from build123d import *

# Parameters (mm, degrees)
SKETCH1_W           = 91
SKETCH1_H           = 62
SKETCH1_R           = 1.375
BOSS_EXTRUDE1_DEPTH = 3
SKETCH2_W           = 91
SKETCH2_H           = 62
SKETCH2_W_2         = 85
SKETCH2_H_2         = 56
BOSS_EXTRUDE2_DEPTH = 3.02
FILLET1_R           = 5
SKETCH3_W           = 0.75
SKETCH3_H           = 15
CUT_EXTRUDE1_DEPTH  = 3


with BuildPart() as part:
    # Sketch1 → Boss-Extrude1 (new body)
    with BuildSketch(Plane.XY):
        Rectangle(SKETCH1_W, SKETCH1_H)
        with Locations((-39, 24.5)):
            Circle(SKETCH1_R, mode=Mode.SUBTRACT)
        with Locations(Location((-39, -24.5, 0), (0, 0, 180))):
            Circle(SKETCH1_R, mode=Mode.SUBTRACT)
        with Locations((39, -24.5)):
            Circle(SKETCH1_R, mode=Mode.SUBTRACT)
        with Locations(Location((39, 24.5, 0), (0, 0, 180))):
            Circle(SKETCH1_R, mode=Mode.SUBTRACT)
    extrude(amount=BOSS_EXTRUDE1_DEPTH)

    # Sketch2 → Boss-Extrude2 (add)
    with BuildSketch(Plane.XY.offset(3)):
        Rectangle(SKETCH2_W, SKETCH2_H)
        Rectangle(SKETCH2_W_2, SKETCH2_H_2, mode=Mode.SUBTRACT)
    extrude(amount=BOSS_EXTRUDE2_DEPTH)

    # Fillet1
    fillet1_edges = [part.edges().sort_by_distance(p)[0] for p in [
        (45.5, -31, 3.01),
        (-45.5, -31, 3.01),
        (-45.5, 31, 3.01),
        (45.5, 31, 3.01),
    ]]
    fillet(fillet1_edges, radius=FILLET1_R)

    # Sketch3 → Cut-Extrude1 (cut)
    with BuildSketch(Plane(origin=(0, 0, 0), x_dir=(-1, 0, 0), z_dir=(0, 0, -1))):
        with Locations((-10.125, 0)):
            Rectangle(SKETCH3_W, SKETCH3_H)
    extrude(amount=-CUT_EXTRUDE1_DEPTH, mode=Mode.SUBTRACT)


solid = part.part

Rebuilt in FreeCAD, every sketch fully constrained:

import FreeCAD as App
import Part
import Sketcher
Q = App.Units.Quantity


def edges_at(feature, points):
    """Names of the edges that pass closest to the given points."""
    edges = feature.Shape.Edges
    near = lambda p: min(range(len(edges)), key=lambda i: edges[i].distToShape(Part.Vertex(*p))[0])
    return sorted({f"Edge{near(p) + 1}" for p in points})

doc = App.newDocument("Part")
body = doc.addObject("PartDesign::Body", "Body")

# Sketch on XY plane
sketch1 = body.newObject("Sketcher::SketchObject", "Sketch")
sketch1.AttachmentSupport = (doc.getObject("XY_Plane"), [""])
sketch1.MapMode = "FlatFace"
sketch1.addGeometry([
    Part.LineSegment(App.Vector(-45.5, 31, 0), App.Vector(-45.5, -31, 0)),  # 0
    Part.LineSegment(App.Vector(-45.5, -31, 0), App.Vector(45.5, -31, 0)),  # 1
    Part.LineSegment(App.Vector(45.5, -31, 0), App.Vector(45.5, 31, 0)),  # 2
    Part.LineSegment(App.Vector(45.5, 31, 0), App.Vector(-45.5, 31, 0)),  # 3
    Part.Circle(App.Vector(-39, -24.5, 0), App.Vector(0, 0, 1), 1.375),  # 4
    Part.Circle(App.Vector(39, -24.5, 0), App.Vector(0, 0, 1), 1.375),  # 5
    Part.Circle(App.Vector(-39, 24.5, 0), App.Vector(0, 0, 1), 1.375),  # 6
    Part.Circle(App.Vector(39, 24.5, 0), App.Vector(0, 0, 1), 1.375),  # 7
], False)
sketch1.addConstraint([
    Sketcher.Constraint("Coincident", 0, 2, 1, 1),
    Sketcher.Constraint("Coincident", 1, 2, 2, 1),
    Sketcher.Constraint("Coincident", 2, 2, 3, 1),
    Sketcher.Constraint("Coincident", 3, 2, 0, 1),
    Sketcher.Constraint("Vertical", 0),
    Sketcher.Constraint("Horizontal", 1),
    Sketcher.Constraint("Vertical", 2),
    Sketcher.Constraint("Horizontal", 3),
    Sketcher.Constraint("Equal", 4, 5),
    Sketcher.Constraint("Equal", 5, 6),
    Sketcher.Constraint("Equal", 6, 7),
    Sketcher.Constraint("Symmetric", 5, 3, 6, 3, -1, 1),
    Sketcher.Constraint("Symmetric", 4, 3, 7, 3, -1, 1),
    Sketcher.Constraint("Symmetric", 0, 2, 2, 2, -1, 1),
    Sketcher.Constraint("Symmetric", 4, 3, 5, 3, -2),
    Sketcher.Constraint("Diameter", 4, Q("2.75 mm")),
    Sketcher.Constraint("DistanceX", 1, 1, 1, 2, Q("91 mm")),
    Sketcher.Constraint("DistanceY", 0, 2, 0, 1, Q("62 mm")),
    Sketcher.Constraint("DistanceX", 4, 3, -1, 1, Q("39 mm")),
    Sketcher.Constraint("DistanceY", 4, 3, 6, 3, Q("49 mm")),
])
pad1 = body.newObject("PartDesign::Pad", "Pad")
pad1.Profile = sketch1
pad1.Length = 3

# Sketch on XY plane
sketch2 = body.newObject("Sketcher::SketchObject", "Sketch001")
sketch2.AttachmentSupport = (doc.getObject("XY_Plane"), [""])
sketch2.MapMode = "FlatFace"
sketch2.AttachmentOffset = App.Placement(App.Vector(0, 0, 3), App.Rotation())
sketch2.addGeometry([
    Part.LineSegment(App.Vector(-45.5, 31, 0), App.Vector(-45.5, -31, 0)),  # 0
    Part.LineSegment(App.Vector(-45.5, -31, 0), App.Vector(45.5, -31, 0)),  # 1
    Part.LineSegment(App.Vector(45.5, -31, 0), App.Vector(45.5, 31, 0)),  # 2
    Part.LineSegment(App.Vector(45.5, 31, 0), App.Vector(-45.5, 31, 0)),  # 3
    Part.LineSegment(App.Vector(42.5, -28, 0), App.Vector(-42.5, -28, 0)),  # 4
    Part.LineSegment(App.Vector(-42.5, -28, 0), App.Vector(-42.5, 28, 0)),  # 5
    Part.LineSegment(App.Vector(-42.5, 28, 0), App.Vector(42.5, 28, 0)),  # 6
    Part.LineSegment(App.Vector(42.5, 28, 0), App.Vector(42.5, -28, 0)),  # 7
], False)
sketch2.addConstraint([
    Sketcher.Constraint("Coincident", 0, 2, 1, 1),
    Sketcher.Constraint("Coincident", 1, 2, 2, 1),
    Sketcher.Constraint("Coincident", 2, 2, 3, 1),
    Sketcher.Constraint("Coincident", 3, 2, 0, 1),
    Sketcher.Constraint("Coincident", 4, 2, 5, 1),
    Sketcher.Constraint("Coincident", 5, 2, 6, 1),
    Sketcher.Constraint("Coincident", 6, 2, 7, 1),
    Sketcher.Constraint("Coincident", 7, 2, 4, 1),
    Sketcher.Constraint("Vertical", 0),
    Sketcher.Constraint("Horizontal", 1),
    Sketcher.Constraint("Vertical", 2),
    Sketcher.Constraint("Horizontal", 3),
    Sketcher.Constraint("Horizontal", 4),
    Sketcher.Constraint("Vertical", 5),
    Sketcher.Constraint("Horizontal", 6),
    Sketcher.Constraint("Vertical", 7),
    Sketcher.Constraint("Symmetric", 0, 2, 2, 2, -1, 1),
    Sketcher.Constraint("Symmetric", 4, 2, 6, 2, -1, 1),
    Sketcher.Constraint("DistanceX", 1, 1, 1, 2, Q("91 mm")),
    Sketcher.Constraint("DistanceX", 4, 2, 4, 1, Q("85 mm")),
    Sketcher.Constraint("DistanceY", 0, 2, 0, 1, Q("62 mm")),
    Sketcher.Constraint("DistanceY", 5, 1, 5, 2, Q("56 mm")),
])
pad2 = body.newObject("PartDesign::Pad", "Pad001")
pad2.Profile = sketch2
pad2.Length = 3.02
doc.recompute()

fillet = body.newObject("PartDesign::Fillet", "Fillet")
fillet.Base = (pad2, edges_at(pad2, [
    (45.5, -31, 3.01),
    (-45.5, -31, 3.01),
    (-45.5, 31, 3.01),
    (45.5, 31, 3.01),
]))
fillet.Radius = 5

# Sketch on XY plane
sketch3 = body.newObject("Sketcher::SketchObject", "Sketch002")
sketch3.AttachmentSupport = (doc.getObject("XY_Plane"), [""])
sketch3.MapMode = "FlatFace"
sketch3.addGeometry([
    Part.LineSegment(App.Vector(10.5, 7.5, 0), App.Vector(10.5, -7.5, 0)),
    Part.LineSegment(App.Vector(10.5, -7.5, 0), App.Vector(9.75, -7.5, 0)),
    Part.LineSegment(App.Vector(9.75, -7.5, 0), App.Vector(9.75, 7.5, 0)),
    Part.LineSegment(App.Vector(9.75, 7.5, 0), App.Vector(10.5, 7.5, 0)),
], False)
sketch3.addConstraint([
    Sketcher.Constraint("Coincident", 0, 2, 1, 1),
    Sketcher.Constraint("Coincident", 1, 2, 2, 1),
    Sketcher.Constraint("Coincident", 2, 2, 3, 1),
    Sketcher.Constraint("Coincident", 3, 2, 0, 1),
    Sketcher.Constraint("Vertical", 0),
    Sketcher.Constraint("Horizontal", 1),
    Sketcher.Constraint("Vertical", 2),
    Sketcher.Constraint("Horizontal", 3),
    Sketcher.Constraint("DistanceY", 0, 2, 0, 1, Q("15 mm")),
    Sketcher.Constraint("DistanceX", 1, 2, 1, 1, Q("0.75 mm")),
    Sketcher.Constraint("DistanceX", -1, 1, 0, 2, Q("10.5 mm")),
    Sketcher.Constraint("DistanceY", 0, 2, -1, 1, Q("7.5 mm")),
])
pocket1 = body.newObject("PartDesign::Pocket", "Pocket")
pocket1.Profile = sketch3
pocket1.Length = 3
pocket1.Reversed = True

doc.recompute()
